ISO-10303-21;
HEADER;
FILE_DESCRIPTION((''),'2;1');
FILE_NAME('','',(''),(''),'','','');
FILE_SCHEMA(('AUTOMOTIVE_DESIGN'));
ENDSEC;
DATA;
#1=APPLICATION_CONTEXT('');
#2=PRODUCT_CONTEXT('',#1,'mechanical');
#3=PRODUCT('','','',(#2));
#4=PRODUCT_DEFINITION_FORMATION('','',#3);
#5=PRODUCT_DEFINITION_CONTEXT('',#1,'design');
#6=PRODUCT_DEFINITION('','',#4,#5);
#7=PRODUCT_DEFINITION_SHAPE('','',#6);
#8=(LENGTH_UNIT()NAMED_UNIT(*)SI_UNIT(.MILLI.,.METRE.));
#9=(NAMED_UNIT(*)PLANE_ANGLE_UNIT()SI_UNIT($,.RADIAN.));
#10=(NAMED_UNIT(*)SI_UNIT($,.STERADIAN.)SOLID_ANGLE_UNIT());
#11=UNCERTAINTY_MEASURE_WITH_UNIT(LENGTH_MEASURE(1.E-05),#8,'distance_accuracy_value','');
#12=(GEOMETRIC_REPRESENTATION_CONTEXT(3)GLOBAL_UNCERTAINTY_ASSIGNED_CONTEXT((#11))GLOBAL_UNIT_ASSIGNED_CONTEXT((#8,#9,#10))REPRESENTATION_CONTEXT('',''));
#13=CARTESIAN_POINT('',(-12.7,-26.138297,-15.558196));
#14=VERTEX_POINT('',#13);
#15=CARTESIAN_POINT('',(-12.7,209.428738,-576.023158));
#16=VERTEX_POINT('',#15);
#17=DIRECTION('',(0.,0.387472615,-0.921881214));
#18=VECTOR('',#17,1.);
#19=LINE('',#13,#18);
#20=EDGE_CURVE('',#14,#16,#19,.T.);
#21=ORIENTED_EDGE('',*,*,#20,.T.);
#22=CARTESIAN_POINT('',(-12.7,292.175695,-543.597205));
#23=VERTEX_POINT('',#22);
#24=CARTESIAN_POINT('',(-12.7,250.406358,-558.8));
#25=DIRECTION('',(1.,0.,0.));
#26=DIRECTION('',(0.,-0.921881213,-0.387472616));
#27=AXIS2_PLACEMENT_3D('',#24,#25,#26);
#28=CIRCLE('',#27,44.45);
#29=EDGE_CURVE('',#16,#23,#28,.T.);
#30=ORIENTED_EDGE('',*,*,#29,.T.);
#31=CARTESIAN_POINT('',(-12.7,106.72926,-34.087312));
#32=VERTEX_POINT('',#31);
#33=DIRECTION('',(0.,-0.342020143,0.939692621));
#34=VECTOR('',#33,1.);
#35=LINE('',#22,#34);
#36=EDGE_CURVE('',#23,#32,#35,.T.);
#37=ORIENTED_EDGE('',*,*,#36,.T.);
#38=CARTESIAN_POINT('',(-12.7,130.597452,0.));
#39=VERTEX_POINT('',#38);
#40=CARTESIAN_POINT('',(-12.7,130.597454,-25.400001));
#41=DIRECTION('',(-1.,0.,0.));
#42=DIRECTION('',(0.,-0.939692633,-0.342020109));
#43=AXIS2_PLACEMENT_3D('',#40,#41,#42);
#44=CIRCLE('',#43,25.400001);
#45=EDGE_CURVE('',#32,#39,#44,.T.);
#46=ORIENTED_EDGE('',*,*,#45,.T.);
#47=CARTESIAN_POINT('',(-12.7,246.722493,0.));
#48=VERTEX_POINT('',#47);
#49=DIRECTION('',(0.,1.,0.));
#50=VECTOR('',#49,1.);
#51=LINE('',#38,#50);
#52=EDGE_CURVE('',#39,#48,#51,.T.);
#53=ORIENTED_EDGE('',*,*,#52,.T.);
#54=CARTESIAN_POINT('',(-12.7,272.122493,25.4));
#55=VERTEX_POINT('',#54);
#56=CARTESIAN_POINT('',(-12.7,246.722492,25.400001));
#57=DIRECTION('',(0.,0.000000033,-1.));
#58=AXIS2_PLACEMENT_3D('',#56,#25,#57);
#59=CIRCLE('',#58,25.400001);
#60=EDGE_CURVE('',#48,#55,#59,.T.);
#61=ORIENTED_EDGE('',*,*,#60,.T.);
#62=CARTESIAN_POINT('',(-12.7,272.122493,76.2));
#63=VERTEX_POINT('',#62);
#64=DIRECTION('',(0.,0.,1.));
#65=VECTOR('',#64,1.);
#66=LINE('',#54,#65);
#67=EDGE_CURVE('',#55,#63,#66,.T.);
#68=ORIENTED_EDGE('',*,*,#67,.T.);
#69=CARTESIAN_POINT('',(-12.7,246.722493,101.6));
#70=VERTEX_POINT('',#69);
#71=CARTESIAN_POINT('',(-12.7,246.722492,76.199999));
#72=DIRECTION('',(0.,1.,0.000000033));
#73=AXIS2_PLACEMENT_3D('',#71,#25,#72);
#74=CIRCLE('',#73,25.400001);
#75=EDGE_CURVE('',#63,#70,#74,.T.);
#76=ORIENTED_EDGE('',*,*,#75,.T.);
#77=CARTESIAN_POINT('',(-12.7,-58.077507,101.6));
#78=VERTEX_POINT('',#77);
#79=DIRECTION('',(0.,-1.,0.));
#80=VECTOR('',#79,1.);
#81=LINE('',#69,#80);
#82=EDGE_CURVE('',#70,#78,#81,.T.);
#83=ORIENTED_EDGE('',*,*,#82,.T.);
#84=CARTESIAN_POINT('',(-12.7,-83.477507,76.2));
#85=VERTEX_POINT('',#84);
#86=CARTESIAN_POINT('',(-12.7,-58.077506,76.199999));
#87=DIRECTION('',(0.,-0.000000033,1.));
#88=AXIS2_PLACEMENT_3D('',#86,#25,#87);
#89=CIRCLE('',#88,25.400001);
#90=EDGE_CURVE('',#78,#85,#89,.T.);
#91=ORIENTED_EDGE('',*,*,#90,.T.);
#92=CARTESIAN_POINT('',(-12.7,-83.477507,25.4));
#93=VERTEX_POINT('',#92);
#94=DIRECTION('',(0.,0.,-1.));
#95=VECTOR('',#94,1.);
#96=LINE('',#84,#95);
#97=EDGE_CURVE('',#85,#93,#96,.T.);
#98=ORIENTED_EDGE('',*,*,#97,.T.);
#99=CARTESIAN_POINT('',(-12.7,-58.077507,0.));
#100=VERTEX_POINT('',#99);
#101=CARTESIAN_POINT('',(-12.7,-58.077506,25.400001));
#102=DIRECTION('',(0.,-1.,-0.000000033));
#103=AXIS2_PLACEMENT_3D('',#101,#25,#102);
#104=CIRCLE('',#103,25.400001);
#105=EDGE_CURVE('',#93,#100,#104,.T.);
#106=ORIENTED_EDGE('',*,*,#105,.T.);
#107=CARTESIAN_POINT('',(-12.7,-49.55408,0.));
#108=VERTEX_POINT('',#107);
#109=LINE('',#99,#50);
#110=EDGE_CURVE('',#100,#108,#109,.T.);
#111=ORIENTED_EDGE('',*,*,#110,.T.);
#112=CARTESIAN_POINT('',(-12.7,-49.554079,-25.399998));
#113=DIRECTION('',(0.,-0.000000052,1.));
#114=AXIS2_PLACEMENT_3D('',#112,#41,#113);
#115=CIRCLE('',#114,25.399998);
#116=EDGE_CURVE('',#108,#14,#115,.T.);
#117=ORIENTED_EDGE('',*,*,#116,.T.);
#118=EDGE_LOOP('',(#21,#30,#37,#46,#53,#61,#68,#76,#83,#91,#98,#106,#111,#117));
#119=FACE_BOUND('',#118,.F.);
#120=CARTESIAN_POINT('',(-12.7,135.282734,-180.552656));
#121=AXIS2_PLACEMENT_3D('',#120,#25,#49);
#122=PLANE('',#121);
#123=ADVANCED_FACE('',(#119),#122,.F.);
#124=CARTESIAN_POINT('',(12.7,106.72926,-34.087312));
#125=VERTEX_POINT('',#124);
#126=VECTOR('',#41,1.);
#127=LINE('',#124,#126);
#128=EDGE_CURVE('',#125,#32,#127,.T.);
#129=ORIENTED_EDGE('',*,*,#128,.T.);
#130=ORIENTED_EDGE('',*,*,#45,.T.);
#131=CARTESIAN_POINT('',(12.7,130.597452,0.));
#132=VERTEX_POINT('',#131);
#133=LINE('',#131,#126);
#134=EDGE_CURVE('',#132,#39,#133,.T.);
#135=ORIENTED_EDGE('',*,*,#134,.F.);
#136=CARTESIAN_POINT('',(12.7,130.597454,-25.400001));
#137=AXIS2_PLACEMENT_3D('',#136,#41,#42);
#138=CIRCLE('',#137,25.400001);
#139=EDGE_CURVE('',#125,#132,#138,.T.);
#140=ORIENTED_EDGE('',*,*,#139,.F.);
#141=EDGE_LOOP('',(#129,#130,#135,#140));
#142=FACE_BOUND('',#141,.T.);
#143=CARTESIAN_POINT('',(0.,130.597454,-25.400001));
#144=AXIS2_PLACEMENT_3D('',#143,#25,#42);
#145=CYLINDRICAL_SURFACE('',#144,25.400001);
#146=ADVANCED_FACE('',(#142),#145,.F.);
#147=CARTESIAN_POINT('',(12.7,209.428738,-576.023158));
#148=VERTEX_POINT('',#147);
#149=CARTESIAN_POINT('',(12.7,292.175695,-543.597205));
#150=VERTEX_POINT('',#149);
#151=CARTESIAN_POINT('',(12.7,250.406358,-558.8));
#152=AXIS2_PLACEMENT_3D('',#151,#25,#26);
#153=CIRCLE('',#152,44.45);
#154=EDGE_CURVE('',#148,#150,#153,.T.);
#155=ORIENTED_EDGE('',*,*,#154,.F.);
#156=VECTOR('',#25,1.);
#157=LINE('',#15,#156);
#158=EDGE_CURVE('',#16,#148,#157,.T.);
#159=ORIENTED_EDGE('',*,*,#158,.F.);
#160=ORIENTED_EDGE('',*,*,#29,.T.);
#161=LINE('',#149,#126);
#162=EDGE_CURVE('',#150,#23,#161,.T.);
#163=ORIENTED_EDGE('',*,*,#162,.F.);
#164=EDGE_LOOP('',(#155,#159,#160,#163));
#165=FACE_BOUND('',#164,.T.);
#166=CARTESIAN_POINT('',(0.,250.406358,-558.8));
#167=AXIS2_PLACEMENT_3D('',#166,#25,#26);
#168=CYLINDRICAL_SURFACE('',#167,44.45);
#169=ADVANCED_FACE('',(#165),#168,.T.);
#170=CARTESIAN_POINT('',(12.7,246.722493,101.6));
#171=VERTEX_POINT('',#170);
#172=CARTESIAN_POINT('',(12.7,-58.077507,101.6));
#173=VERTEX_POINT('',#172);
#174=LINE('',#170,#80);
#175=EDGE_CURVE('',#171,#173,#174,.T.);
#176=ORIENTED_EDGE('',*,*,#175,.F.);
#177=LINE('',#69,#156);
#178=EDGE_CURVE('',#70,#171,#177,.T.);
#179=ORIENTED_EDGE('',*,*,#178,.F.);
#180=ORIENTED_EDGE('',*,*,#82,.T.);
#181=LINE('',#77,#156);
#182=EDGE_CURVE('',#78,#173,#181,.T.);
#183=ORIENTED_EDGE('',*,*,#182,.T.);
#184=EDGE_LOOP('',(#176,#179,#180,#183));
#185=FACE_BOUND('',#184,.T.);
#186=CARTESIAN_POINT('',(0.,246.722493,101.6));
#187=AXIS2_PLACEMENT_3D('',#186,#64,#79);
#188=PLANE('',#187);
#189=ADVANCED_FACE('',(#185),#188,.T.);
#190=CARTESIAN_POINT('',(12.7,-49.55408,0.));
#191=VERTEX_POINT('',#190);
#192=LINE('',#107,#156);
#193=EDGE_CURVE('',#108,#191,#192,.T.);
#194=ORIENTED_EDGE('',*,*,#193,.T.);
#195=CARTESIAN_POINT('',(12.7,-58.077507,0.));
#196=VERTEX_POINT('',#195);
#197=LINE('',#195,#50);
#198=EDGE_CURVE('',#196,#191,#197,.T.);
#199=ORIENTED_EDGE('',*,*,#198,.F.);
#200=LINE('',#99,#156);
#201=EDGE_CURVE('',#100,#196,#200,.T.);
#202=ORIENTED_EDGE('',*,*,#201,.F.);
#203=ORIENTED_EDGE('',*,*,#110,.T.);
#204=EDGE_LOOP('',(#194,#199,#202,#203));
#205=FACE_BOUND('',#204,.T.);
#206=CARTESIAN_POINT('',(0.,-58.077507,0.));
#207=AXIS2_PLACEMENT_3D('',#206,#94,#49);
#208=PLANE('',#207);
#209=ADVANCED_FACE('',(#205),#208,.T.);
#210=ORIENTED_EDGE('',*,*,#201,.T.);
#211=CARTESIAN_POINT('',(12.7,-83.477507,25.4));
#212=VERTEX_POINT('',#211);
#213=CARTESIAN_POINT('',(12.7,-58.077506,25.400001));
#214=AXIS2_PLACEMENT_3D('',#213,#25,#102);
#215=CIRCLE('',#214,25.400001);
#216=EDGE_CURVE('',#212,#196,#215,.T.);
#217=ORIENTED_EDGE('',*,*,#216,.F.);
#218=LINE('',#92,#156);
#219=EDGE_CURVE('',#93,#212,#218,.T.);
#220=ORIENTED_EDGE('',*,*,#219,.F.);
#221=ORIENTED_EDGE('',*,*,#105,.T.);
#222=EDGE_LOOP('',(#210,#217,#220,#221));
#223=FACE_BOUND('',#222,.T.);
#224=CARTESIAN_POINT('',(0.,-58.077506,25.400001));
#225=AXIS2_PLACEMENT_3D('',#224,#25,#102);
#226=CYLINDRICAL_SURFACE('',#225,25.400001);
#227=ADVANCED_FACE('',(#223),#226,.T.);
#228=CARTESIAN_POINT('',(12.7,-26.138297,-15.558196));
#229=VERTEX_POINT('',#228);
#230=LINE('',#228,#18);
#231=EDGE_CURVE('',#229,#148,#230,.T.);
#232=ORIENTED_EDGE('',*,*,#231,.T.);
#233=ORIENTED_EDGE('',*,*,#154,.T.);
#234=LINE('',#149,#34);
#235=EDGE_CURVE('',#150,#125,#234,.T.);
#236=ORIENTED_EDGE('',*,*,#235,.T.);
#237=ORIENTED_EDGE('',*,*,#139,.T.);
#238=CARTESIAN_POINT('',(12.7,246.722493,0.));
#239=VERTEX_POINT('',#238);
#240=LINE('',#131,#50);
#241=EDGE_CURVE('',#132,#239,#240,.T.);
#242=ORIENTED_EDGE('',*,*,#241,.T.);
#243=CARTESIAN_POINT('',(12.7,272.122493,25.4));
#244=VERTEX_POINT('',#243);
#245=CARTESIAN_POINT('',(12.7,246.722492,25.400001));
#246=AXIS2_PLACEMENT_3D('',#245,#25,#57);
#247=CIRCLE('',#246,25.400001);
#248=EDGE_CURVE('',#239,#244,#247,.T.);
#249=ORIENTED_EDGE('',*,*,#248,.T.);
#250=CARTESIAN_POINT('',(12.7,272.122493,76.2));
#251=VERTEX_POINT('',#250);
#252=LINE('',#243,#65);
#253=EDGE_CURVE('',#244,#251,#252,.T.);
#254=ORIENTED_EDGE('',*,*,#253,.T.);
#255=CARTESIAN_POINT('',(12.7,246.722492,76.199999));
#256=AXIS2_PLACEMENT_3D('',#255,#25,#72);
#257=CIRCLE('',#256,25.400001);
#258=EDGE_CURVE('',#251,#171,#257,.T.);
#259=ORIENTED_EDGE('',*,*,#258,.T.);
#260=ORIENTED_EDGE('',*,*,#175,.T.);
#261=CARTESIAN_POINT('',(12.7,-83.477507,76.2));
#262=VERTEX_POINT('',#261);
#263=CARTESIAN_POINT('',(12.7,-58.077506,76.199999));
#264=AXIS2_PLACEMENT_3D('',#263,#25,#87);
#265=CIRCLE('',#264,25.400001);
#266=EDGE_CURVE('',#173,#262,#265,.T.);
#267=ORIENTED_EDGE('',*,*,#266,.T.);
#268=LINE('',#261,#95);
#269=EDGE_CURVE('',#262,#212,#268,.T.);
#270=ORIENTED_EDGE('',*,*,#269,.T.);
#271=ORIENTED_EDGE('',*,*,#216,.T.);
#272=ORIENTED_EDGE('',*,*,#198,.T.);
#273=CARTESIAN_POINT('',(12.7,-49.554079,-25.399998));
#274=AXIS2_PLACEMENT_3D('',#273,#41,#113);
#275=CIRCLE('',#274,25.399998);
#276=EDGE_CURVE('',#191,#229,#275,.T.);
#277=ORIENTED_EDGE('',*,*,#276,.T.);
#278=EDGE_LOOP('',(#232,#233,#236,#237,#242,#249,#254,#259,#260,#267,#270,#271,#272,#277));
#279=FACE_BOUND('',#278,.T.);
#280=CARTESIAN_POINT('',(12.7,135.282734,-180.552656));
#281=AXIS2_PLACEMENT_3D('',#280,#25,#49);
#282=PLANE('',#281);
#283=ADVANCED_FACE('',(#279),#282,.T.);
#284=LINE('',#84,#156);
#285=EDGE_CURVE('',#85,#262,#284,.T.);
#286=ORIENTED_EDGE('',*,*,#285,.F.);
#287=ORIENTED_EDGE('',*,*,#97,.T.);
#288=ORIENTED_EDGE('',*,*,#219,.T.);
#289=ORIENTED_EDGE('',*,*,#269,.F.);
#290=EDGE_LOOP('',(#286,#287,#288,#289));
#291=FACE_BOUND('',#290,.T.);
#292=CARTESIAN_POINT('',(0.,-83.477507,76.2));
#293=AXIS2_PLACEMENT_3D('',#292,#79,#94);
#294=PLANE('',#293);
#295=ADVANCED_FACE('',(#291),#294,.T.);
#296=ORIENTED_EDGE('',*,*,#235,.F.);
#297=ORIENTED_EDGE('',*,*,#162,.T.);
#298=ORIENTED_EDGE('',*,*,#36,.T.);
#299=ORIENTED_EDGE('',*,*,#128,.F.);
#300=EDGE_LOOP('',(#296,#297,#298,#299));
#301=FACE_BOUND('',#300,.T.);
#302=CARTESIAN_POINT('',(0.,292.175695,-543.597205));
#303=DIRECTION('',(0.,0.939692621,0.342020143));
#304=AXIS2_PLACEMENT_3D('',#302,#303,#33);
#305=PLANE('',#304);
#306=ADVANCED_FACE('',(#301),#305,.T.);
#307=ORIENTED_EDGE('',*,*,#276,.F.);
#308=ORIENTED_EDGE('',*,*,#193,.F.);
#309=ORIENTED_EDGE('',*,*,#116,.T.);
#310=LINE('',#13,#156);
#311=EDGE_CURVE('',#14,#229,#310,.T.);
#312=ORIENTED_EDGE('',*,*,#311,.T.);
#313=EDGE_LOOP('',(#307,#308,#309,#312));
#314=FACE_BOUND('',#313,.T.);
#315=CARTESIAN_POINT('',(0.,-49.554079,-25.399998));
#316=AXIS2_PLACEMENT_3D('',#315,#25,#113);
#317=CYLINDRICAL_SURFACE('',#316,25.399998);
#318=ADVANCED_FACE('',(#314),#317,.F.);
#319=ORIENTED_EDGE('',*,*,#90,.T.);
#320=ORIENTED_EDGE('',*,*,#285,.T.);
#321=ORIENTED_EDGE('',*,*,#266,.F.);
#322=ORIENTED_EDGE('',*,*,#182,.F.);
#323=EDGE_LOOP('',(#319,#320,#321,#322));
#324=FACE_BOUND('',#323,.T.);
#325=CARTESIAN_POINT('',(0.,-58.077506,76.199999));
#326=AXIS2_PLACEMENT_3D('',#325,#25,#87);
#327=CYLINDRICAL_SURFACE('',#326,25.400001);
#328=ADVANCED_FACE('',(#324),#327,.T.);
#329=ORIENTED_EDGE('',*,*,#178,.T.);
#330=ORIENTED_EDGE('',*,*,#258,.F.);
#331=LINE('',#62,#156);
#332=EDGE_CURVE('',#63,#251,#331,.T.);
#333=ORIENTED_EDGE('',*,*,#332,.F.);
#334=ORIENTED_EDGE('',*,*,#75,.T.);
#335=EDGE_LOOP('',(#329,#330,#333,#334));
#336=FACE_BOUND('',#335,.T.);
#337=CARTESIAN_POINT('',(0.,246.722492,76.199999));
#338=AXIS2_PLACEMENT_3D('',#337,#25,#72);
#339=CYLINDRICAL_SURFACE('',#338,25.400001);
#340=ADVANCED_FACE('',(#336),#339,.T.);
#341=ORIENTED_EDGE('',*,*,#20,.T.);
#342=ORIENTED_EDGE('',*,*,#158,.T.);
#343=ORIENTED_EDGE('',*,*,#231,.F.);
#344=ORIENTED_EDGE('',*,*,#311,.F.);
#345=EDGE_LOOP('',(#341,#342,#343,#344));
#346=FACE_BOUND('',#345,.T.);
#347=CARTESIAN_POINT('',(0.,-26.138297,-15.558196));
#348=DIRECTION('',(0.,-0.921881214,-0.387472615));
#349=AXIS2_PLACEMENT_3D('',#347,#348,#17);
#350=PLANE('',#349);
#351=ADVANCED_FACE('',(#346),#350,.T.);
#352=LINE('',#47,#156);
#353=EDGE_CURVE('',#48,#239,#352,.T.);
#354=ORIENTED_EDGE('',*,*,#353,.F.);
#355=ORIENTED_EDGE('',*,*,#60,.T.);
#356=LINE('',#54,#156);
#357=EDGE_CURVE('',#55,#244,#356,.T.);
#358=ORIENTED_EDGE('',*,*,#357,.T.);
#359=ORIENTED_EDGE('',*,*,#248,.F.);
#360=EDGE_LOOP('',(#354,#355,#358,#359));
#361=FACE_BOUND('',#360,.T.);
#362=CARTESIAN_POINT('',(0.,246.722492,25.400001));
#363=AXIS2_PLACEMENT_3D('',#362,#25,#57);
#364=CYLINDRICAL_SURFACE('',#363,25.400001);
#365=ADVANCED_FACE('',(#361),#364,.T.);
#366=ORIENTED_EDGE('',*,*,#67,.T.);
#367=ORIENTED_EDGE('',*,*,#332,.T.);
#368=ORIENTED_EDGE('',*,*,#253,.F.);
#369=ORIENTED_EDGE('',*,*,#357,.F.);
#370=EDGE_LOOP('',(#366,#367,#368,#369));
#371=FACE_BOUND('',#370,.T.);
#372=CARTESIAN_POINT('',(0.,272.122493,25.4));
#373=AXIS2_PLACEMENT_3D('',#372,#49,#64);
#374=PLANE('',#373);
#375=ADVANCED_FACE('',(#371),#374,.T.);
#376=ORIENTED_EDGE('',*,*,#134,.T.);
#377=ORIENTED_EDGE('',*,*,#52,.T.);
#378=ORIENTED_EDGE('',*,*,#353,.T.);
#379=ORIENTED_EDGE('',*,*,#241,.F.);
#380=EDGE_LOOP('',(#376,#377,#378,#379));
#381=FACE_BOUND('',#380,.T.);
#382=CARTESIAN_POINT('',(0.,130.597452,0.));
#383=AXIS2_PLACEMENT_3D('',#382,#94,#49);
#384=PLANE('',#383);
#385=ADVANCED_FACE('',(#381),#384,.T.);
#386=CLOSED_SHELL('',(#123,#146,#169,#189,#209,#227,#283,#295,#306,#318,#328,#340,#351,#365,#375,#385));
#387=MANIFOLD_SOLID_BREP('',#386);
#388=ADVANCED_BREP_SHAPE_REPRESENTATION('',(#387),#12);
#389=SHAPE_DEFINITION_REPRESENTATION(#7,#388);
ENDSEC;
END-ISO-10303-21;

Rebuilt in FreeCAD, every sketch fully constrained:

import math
import FreeCAD as App
import Part
import Sketcher
Q = App.Units.Quantity

doc = App.newDocument("Part")
body = doc.addObject("PartDesign::Body", "Body")

# Sketch on YZ plane
sketch1 = body.newObject("Sketcher::SketchObject", "Sketch")
sketch1.AttachmentSupport = (doc.getObject("YZ_Plane"), [""])
sketch1.MapMode = "FlatFace"
sketch1.addGeometry(Part.LineSegment(App.Vector(131, 0, 0), App.Vector(247, 0, 0)), False)
sketch1.addGeometry(Part.ArcOfCircle(Part.Circle(App.Vector(247, 25, 0), App.Vector(0, 0, 1), 25), math.radians(-90), math.radians(0)), False)
sketch1.addGeometry(Part.LineSegment(App.Vector(272, 25, 0), App.Vector(272, 76, 0)), False)
sketch1.addGeometry(Part.ArcOfCircle(Part.Circle(App.Vector(247, 76, 0), App.Vector(0, 0, 1), 25), math.radians(0), math.radians(90)), False)
sketch1.addGeometry(Part.LineSegment(App.Vector(247, 102, 0), App.Vector(-58, 102, 0)), False)
sketch1.addGeometry(Part.ArcOfCircle(Part.Circle(App.Vector(-58, 76, 0), App.Vector(0, 0, 1), 25), math.radians(90), math.radians(180)), False)
sketch1.addGeometry(Part.LineSegment(App.Vector(-83, 76, 0), App.Vector(-83, 25, 0)), False)
sketch1.addGeometry(Part.ArcOfCircle(Part.Circle(App.Vector(-58, 25, 0), App.Vector(0, 0, 1), 25), math.radians(-180), math.radians(-90)), False)
sketch1.addGeometry(Part.LineSegment(App.Vector(-58, 0, 0), App.Vector(-50, 0, 0)), False)
sketch1.addGeometry(Part.ArcOfCircle(Part.Circle(App.Vector(-50, -25, 0), App.Vector(0, 0, 1), 25), math.radians(23), math.radians(90)), False)
sketch1.addGeometry(Part.LineSegment(App.Vector(-26, -16, 0), App.Vector(209, -576, 0)), False)
sketch1.addGeometry(Part.ArcOfCircle(Part.Circle(App.Vector(250, -559, 0), App.Vector(0, 0, 1), 44), math.radians(-157), math.radians(20)), False)
sketch1.addGeometry(Part.LineSegment(App.Vector(292, -544, 0), App.Vector(107, -34, 0)), False)
sketch1.addGeometry(Part.ArcOfCircle(Part.Circle(App.Vector(131, -25, 0), App.Vector(0, 0, 1), 25), math.radians(90), math.radians(200)), False)
sketch1.addConstraint(Sketcher.Constraint("Tangent", 0, 2, 1, 1))
sketch1.addConstraint(Sketcher.Constraint("Tangent", 1, 2, 2, 1))
sketch1.addConstraint(Sketcher.Constraint("Tangent", 2, 2, 3, 1))
sketch1.addConstraint(Sketcher.Constraint("Tangent", 3, 2, 4, 1))
sketch1.addConstraint(Sketcher.Constraint("Tangent", 4, 2, 5, 1))
sketch1.addConstraint(Sketcher.Constraint("Tangent", 5, 2, 6, 1))
sketch1.addConstraint(Sketcher.Constraint("Tangent", 6, 2, 7, 1))
sketch1.addConstraint(Sketcher.Constraint("Tangent", 7, 2, 8, 1))
sketch1.addConstraint(Sketcher.Constraint("Tangent", 8, 2, 9, 2))
sketch1.addConstraint(Sketcher.Constraint("Tangent", 9, 1, 10, 1))
sketch1.addConstraint(Sketcher.Constraint("Tangent", 10, 2, 11, 1))
sketch1.addConstraint(Sketcher.Constraint("Tangent", 11, 2, 12, 1))
sketch1.addConstraint(Sketcher.Constraint("Tangent", 12, 2, 13, 2))
sketch1.addConstraint(Sketcher.Constraint("Tangent", 13, 1, 0, 1))
sketch1.addConstraint(Sketcher.Constraint("Horizontal", 0))
sketch1.addConstraint(Sketcher.Constraint("Vertical", 2))
sketch1.addConstraint(Sketcher.Constraint("Horizontal", 4))
sketch1.addConstraint(Sketcher.Constraint("Vertical", 6))
sketch1.addConstraint(Sketcher.Constraint("Horizontal", 8))
sketch1.addConstraint(Sketcher.Constraint("Equal", 1, 3))
sketch1.addConstraint(Sketcher.Constraint("Equal", 3, 5))
sketch1.addConstraint(Sketcher.Constraint("Equal", 5, 7))
sketch1.addConstraint(Sketcher.Constraint("Equal", 7, 13))
sketch1.addConstraint(Sketcher.Constraint("PointOnObject", 0, 2, -1))
sketch1.addConstraint(Sketcher.Constraint("PointOnObject", 7, 2, -1))
sketch1.addConstraint(Sketcher.Constraint("Radius", 1, Q("1 in")))
sketch1.addConstraint(Sketcher.Constraint("Radius", 9, Q("0.9999999 in")))
sketch1.addConstraint(Sketcher.Constraint("DistanceX", 4, 2, 4, 1, Q("12 in")))
sketch1.addConstraint(Sketcher.Constraint("DistanceY", 2, 1, 2, 2, Q("2 in")))
sketch1.addConstraint(Sketcher.Constraint("Radius", 11, Q("1.75 in")))
sketch1.addConstraint(Sketcher.Constraint("DistanceY", 11, 3, -1, 1, Q("22 in")))
sketch1.addConstraint(Sketcher.Constraint("Angle", 12, Q("110 deg")))
sketch1.addConstraint(Sketcher.Constraint("DistanceX", 0, 1, 0, 2, Q("116.125041 mm")))
sketch1.addConstraint(Sketcher.Constraint("DistanceX", 8, 1, 8, 2, Q("8.523427 mm")))
sketch1.addConstraint(Sketcher.Constraint("DistanceX", 9, 3, -1, 1, Q("49.554079 mm")))
pad1 = body.newObject("PartDesign::Pad", "Pad")
pad1.Profile = sketch1
pad1.Length = Q("1 in")
pad1.Midplane = True

doc.recompute()
